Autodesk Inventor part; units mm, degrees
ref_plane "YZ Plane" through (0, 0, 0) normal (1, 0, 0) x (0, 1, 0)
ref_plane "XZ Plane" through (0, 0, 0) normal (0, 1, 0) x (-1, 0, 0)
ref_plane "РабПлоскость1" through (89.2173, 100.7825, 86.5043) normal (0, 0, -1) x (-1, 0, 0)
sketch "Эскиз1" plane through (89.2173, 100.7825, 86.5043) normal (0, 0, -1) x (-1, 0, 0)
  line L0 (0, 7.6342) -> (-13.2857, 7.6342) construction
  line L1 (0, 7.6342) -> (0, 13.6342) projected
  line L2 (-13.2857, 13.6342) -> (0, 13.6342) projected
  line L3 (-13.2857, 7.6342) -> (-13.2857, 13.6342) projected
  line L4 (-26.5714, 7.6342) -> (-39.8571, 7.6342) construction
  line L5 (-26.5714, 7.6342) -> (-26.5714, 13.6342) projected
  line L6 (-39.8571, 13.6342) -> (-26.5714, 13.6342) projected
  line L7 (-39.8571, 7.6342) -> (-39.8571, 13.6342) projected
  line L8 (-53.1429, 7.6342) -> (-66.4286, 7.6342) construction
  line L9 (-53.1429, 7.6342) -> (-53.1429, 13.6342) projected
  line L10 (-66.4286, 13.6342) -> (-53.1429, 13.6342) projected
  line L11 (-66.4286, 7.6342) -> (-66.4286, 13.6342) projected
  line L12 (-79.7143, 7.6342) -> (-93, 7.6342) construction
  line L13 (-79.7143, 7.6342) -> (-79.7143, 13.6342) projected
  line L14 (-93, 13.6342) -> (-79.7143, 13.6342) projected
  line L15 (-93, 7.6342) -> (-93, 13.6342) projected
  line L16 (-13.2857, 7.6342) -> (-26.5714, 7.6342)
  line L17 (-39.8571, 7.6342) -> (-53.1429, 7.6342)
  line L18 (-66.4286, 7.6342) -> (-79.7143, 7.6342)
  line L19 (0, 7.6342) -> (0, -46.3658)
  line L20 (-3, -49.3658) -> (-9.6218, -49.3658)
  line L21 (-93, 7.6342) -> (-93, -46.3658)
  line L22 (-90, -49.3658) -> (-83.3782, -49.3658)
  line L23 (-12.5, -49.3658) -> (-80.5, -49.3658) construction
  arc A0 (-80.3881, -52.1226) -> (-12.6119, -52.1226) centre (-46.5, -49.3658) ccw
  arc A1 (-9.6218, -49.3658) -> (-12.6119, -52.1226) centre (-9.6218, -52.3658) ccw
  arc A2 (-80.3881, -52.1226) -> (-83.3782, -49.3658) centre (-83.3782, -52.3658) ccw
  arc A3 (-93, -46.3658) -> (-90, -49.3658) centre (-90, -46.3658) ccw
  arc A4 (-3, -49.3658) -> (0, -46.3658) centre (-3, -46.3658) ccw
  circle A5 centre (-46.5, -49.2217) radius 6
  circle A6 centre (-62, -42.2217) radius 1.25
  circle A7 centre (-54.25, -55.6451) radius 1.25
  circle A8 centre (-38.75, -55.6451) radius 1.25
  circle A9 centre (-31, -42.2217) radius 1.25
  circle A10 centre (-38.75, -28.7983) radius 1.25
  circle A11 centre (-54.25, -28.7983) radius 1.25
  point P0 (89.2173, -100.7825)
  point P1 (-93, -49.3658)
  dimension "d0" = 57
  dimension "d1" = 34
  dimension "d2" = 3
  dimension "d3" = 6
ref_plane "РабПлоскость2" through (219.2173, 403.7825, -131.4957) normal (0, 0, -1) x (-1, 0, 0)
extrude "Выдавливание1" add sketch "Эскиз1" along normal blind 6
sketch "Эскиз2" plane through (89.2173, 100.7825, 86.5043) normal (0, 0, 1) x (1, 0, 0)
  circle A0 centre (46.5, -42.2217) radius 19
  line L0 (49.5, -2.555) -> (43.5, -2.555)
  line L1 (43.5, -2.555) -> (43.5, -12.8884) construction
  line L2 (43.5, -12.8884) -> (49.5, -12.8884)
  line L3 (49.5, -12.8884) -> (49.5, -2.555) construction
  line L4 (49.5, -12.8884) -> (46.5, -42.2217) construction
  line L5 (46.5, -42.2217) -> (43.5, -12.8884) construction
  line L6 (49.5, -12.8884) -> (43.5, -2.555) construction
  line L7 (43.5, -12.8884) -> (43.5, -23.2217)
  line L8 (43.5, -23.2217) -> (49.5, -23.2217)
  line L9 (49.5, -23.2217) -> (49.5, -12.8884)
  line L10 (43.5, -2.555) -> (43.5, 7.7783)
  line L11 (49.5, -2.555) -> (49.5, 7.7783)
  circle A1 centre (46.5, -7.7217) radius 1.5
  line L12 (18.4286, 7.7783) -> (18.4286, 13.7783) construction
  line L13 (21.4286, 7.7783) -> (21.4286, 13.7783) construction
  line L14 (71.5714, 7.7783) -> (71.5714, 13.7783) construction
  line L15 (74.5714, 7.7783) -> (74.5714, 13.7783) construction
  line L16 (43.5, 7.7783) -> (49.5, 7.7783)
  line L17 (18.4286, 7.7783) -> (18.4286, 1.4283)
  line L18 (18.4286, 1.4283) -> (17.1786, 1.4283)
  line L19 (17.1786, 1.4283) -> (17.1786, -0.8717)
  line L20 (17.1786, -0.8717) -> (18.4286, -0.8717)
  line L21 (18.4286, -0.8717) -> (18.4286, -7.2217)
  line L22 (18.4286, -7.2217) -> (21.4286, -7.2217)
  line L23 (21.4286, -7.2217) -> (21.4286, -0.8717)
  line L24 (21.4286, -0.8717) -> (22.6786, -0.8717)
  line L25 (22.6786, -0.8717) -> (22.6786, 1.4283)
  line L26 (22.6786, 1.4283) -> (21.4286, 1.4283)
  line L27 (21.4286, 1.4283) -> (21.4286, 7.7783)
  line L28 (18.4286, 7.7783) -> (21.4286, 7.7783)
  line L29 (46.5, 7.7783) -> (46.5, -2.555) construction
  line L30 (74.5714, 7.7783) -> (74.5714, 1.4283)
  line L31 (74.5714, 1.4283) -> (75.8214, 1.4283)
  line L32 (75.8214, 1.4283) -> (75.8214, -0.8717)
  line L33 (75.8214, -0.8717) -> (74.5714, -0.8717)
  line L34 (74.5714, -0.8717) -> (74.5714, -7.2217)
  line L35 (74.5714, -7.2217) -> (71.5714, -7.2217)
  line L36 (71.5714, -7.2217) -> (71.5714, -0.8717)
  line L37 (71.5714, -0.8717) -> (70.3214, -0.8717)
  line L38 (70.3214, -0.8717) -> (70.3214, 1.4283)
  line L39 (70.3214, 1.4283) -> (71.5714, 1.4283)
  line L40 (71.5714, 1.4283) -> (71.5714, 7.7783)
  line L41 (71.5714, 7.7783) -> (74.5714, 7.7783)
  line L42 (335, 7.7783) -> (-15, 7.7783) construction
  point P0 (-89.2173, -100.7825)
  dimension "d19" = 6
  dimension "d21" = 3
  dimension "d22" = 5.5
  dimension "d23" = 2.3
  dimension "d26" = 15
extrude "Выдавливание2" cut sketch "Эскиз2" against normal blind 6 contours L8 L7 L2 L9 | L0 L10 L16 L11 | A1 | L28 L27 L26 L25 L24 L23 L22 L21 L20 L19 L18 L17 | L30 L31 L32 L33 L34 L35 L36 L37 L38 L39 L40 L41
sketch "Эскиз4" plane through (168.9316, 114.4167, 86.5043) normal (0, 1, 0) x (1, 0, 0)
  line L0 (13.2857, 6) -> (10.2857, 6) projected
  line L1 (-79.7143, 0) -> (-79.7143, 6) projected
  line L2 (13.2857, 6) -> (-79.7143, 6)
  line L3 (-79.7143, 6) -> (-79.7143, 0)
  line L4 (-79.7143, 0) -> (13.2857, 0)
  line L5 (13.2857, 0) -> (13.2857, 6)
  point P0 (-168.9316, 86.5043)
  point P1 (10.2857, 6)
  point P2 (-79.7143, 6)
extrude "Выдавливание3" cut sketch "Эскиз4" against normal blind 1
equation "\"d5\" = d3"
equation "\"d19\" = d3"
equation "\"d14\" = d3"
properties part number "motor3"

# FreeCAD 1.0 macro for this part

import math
import FreeCAD as App
import Part
import Sketcher
from FreeCAD import Vector
Q = App.Units.Quantity


def add_polygon(sketch, points):
    """Adds a closed chain of lines whose ends are joined by coincident constraints."""
    first, n = sketch.GeometryCount, len(points)
    for a, b in zip(points, points[1:] + points[:1]):
        sketch.addGeometry(Part.LineSegment(App.Vector(*a, 0), App.Vector(*b, 0)), False)
    for i in range(n):
        sketch.addConstraint(Sketcher.Constraint("Coincident", first + i, 2, first + (i + 1) % n, 1))

doc = App.newDocument("Part")
body = doc.addObject("PartDesign::Body", "Body")

sketch1 = body.newObject("Sketcher::SketchObject", "Sketch")
sketch1.AttachmentSupport = (doc.getObject("XY_Plane"), [""])
sketch1.MapMode = "FlatFace"
sketch1.AttachmentOffset = App.Placement(Vector(0, 0, 86.5043), App.Rotation())
sketch1.addGeometry([
    Part.LineSegment(Vector(89.2, 54.4, 0), Vector(89.2, 114.4, 0)),
    Part.LineSegment(Vector(89.2, 114.4, 0), Vector(102.5, 114.4, 0)),
    Part.LineSegment(Vector(102.5, 114.4, 0), Vector(102.5, 108.4, 0)),
    Part.LineSegment(Vector(102.5, 108.4, 0), Vector(115.8, 108.4, 0)),
    Part.LineSegment(Vector(115.8, 108.4, 0), Vector(115.8, 114.4, 0)),
    Part.LineSegment(Vector(115.8, 114.4, 0), Vector(129.1, 114.4, 0)),
    Part.LineSegment(Vector(129.1, 114.4, 0), Vector(129.1, 108.4, 0)),
    Part.LineSegment(Vector(129.1, 108.4, 0), Vector(142.4, 108.4, 0)),
    Part.LineSegment(Vector(142.4, 108.4, 0), Vector(142.4, 114.4, 0)),
    Part.LineSegment(Vector(142.4, 114.4, 0), Vector(155.6, 114.4, 0)),
    Part.LineSegment(Vector(155.6, 114.4, 0), Vector(155.6, 108.4, 0)),
    Part.LineSegment(Vector(155.6, 108.4, 0), Vector(168.9, 108.4, 0)),
    Part.LineSegment(Vector(168.9, 108.4, 0), Vector(168.9, 114.4, 0)),
    Part.LineSegment(Vector(168.9, 114.4, 0), Vector(182.2, 114.4, 0)),
    Part.LineSegment(Vector(182.2, 114.4, 0), Vector(182.2, 54.4, 0)),
    Part.ArcOfCircle(Part.Circle(Vector(179.2, 54.4, 0), Vector(0, 0, 1), 3), math.radians(-90), math.radians(0)),
    Part.LineSegment(Vector(179.2, 51.4, 0), Vector(172.6, 51.4, 0)),
    Part.ArcOfCircle(Part.Circle(Vector(172.6, 48.4, 0), Vector(0, 0, 1), 3), math.radians(90), math.radians(175)),
    Part.ArcOfCircle(Part.Circle(Vector(135.7, 51.4, 0), Vector(0, 0, 1), 34), math.radians(-175), math.radians(-5)),
    Part.ArcOfCircle(Part.Circle(Vector(98.8, 48.4, 0), Vector(0, 0, 1), 3), math.radians(5), math.radians(90)),
    Part.LineSegment(Vector(98.8, 51.4, 0), Vector(92.2, 51.4, 0)),
    Part.ArcOfCircle(Part.Circle(Vector(92.2, 54.4, 0), Vector(0, 0, 1), 3), math.radians(180), math.radians(270)),
    Part.Circle(Vector(143.5, 45.1, 0), Vector(0, 0, 1), 1.2),
    Part.Circle(Vector(151.2, 58.6, 0), Vector(0, 0, 1), 1.2),
    Part.Circle(Vector(128, 45.1, 0), Vector(0, 0, 1), 1.2),
    Part.Circle(Vector(135.7, 51.6, 0), Vector(0, 0, 1), 6),
    Part.Circle(Vector(120.2, 58.6, 0), Vector(0, 0, 1), 1.2),
    Part.Circle(Vector(143.5, 72, 0), Vector(0, 0, 1), 1.2),
    Part.Circle(Vector(128, 72, 0), Vector(0, 0, 1), 1.2),
], False)
sketch1.addConstraint([
    Sketcher.Constraint("Coincident", 0, 2, 1, 1),
    Sketcher.Constraint("Coincident", 1, 2, 2, 1),
    Sketcher.Constraint("Coincident", 2, 2, 3, 1),
    Sketcher.Constraint("Coincident", 3, 2, 4, 1),
    Sketcher.Constraint("Coincident", 4, 2, 5, 1),
    Sketcher.Constraint("Coincident", 5, 2, 6, 1),
    Sketcher.Constraint("Coincident", 6, 2, 7, 1),
    Sketcher.Constraint("Coincident", 7, 2, 8, 1),
    Sketcher.Constraint("Coincident", 8, 2, 9, 1),
    Sketcher.Constraint("Coincident", 9, 2, 10, 1),
    Sketcher.Constraint("Coincident", 10, 2, 11, 1),
    Sketcher.Constraint("Coincident", 11, 2, 12, 1),
    Sketcher.Constraint("Coincident", 12, 2, 13, 1),
    Sketcher.Constraint("Coincident", 13, 2, 14, 1),
    Sketcher.Constraint("Tangent", 14, 2, 15, 2),
    Sketcher.Constraint("Tangent", 15, 1, 16, 1),
    Sketcher.Constraint("Tangent", 16, 2, 17, 1),
    Sketcher.Constraint("Tangent", 17, 2, 18, 2),
    Sketcher.Constraint("Tangent", 18, 1, 19, 1),
    Sketcher.Constraint("Tangent", 19, 2, 20, 1),
    Sketcher.Constraint("Tangent", 20, 2, 21, 2),
    Sketcher.Constraint("Tangent", 21, 1, 0, 1),
    Sketcher.Constraint("Vertical", 0),
    Sketcher.Constraint("Horizontal", 1),
    Sketcher.Constraint("Vertical", 2),
    Sketcher.Constraint("Horizontal", 3),
    Sketcher.Constraint("Vertical", 4),
    Sketcher.Constraint("Horizontal", 5),
    Sketcher.Constraint("Vertical", 6),
    Sketcher.Constraint("Horizontal", 7),
    Sketcher.Constraint("Vertical", 8),
    Sketcher.Constraint("Horizontal", 9),
    Sketcher.Constraint("Vertical", 10),
    Sketcher.Constraint("Horizontal", 11),
    Sketcher.Constraint("Vertical", 12),
    Sketcher.Constraint("Horizontal", 13),
    Sketcher.Constraint("Vertical", 14),
    Sketcher.Constraint("Horizontal", 16),
    Sketcher.Constraint("Horizontal", 20),
    Sketcher.Constraint("Equal", 15, 17),
    Sketcher.Constraint("Equal", 17, 19),
    Sketcher.Constraint("Equal", 19, 21),
    Sketcher.Constraint("Equal", 22, 23),
    Sketcher.Constraint("Equal", 23, 24),
    Sketcher.Constraint("Equal", 24, 26),
    Sketcher.Constraint("Equal", 26, 27),
    Sketcher.Constraint("Equal", 27, 28),
    Sketcher.Constraint("Horizontal", 17, 3, 19, 3),
    Sketcher.Constraint("Horizontal", 22, 3, 24, 3),
    Sketcher.Constraint("Horizontal", 23, 3, 26, 3),
    Sketcher.Constraint("Horizontal", 27, 3, 28, 3),
    Sketcher.Constraint("Horizontal", 1, 2, 4, 2),
    Sketcher.Constraint("Horizontal", 3, 2, 6, 2),
    Sketcher.Constraint("Horizontal", 5, 2, 8, 2),
    Sketcher.Constraint("Horizontal", 7, 2, 10, 2),
    Sketcher.Constraint("Horizontal", 9, 2, 12, 2),
    Sketcher.Constraint("Horizontal", 18, 3, 15, 1),
    Sketcher.Constraint("Vertical", 18, 3, 25, 3),
    Sketcher.Constraint("Vertical", 22, 3, 27, 3),
    Sketcher.Constraint("Vertical", 24, 3, 28, 3),
    Sketcher.Constraint("Equal", 1, 3),
    Sketcher.Constraint("Equal", 3, 5),
    Sketcher.Constraint("Equal", 5, 7),
    Sketcher.Constraint("Equal", 7, 9),
    Sketcher.Constraint("Equal", 9, 11),
    Sketcher.Constraint("Equal", 11, 13),
    Sketcher.Constraint("Equal", 16, 20),
    Sketcher.Constraint("Diameter", 25, Q("12 mm")),
    Sketcher.Constraint("Radius", 15, Q("3 mm")),
    Sketcher.Constraint("Radius", 18, Q("34 mm")),
    Sketcher.Constraint("DistanceY", 2, 2, 2, 1, Q("6 mm")),
    Sketcher.Constraint("Diameter", 22, Q("2.5 mm")),
    Sketcher.Constraint("DistanceY", 0, 1, 0, 2, Q("60 mm")),
    Sketcher.Constraint("DistanceX", 21, 3, 15, 3, Q("87 mm")),
    Sketcher.Constraint("DistanceX", 23, 3, 15, 3, Q("28 mm")),
    Sketcher.Constraint("DistanceY", 25, 3, 23, 3, Q("7 mm")),
    Sketcher.Constraint("DistanceX", 0, 2, 26, 3, Q("31 mm")),
    Sketcher.Constraint("DistanceX", 24, 3, 22, 3, Q("15.5 mm")),
    Sketcher.Constraint("DistanceY", -1, 1, 17, 2, Q("48.66 mm")),
    Sketcher.Constraint("DistanceX", 18, 3, 22, 3, Q("7.75 mm")),
    Sketcher.Constraint("DistanceX", -1, 1, 19, 3, Q("98.839 mm")),
    Sketcher.Constraint("DistanceY", 18, 3, 23, 3, Q("7.144 mm")),
    Sketcher.Constraint("DistanceY", -1, 1, 22, 3, Q("45.1374 mm")),
    Sketcher.Constraint("DistanceY", -1, 1, 27, 3, Q("71.9842 mm")),
])
pad1 = body.newObject("PartDesign::Pad", "Pad")
pad1.Profile = sketch1
pad1.Length = 6
pad1.Reversed = True

sketch2 = body.newObject("Sketcher::SketchObject", "Sketch001")
sketch2.AttachmentSupport = (doc.getObject("XY_Plane"), [""])
sketch2.MapMode = "FlatFace"
sketch2.AttachmentOffset = App.Placement(Vector(0, 0, 86.5043), App.Rotation())
add_polygon(sketch2, [(132.7, 77.6), (138.7, 77.6), (138.7, 87.9), (132.7, 87.9)])
add_polygon(sketch2, [(132.7, 98.2), (138.7, 98.2), (138.7, 108.6), (132.7, 108.6)])
sketch2.addGeometry(Part.Circle(Vector(135.7, 93.1, 0), Vector(0, 0, 1), 1.5), False)
add_polygon(sketch2, [(110.6, 108.6), (107.6, 108.6), (107.6, 102.2), (106.4, 102.2), (106.4, 99.9), (107.6, 99.9), (107.6, 93.6), (110.6, 93.6), (110.6, 99.9), (111.9, 99.9), (111.9, 102.2), (110.6, 102.2)])
add_polygon(sketch2, [(163.8, 102.2), (163.8, 108.6), (160.8, 108.6), (160.8, 102.2), (159.5, 102.2), (159.5, 99.9), (160.8, 99.9), (160.8, 93.6), (163.8, 93.6), (163.8, 99.9), (165, 99.9), (165, 102.2)])
sketch2.addConstraint([
    Sketcher.Constraint("Horizontal", 0),
    Sketcher.Constraint("Vertical", 1),
    Sketcher.Constraint("Horizontal", 2),
    Sketcher.Constraint("Vertical", 3),
    Sketcher.Constraint("Horizontal", 4),
    Sketcher.Constraint("Vertical", 5),
    Sketcher.Constraint("Horizontal", 6),
    Sketcher.Constraint("Vertical", 7),
    Sketcher.Constraint("Horizontal", 9),
    Sketcher.Constraint("Vertical", 10),
    Sketcher.Constraint("Horizontal", 11),
    Sketcher.Constraint("Vertical", 12),
    Sketcher.Constraint("Horizontal", 13),
    Sketcher.Constraint("Vertical", 14),
    Sketcher.Constraint("Horizontal", 15),
    Sketcher.Constraint("Vertical", 16),
    Sketcher.Constraint("Horizontal", 17),
    Sketcher.Constraint("Vertical", 18),
    Sketcher.Constraint("Horizontal", 19),
    Sketcher.Constraint("Vertical", 20),
    Sketcher.Constraint("Vertical", 21),
    Sketcher.Constraint("Horizontal", 22),
    Sketcher.Constraint("Vertical", 23),
    Sketcher.Constraint("Horizontal", 24),
    Sketcher.Constraint("Vertical", 25),
    Sketcher.Constraint("Horizontal", 26),
    Sketcher.Constraint("Vertical", 27),
    Sketcher.Constraint("Horizontal", 28),
    Sketcher.Constraint("Vertical", 29),
    Sketcher.Constraint("Horizontal", 30),
    Sketcher.Constraint("Vertical", 31),
    Sketcher.Constraint("Horizontal", 32),
    Sketcher.Constraint("Horizontal", 6, 2, 9, 2),
    Sketcher.Constraint("Horizontal", 13, 2, 16, 2),
    Sketcher.Constraint("Horizontal", 11, 2, 18, 2),
    Sketcher.Constraint("Horizontal", 20, 2, 21, 2),
    Sketcher.Constraint("Horizontal", 19, 2, 23, 2),
    Sketcher.Constraint("Horizontal", 17, 2, 25, 2),
    Sketcher.Constraint("Horizontal", 15, 2, 27, 2),
    Sketcher.Constraint("Horizontal", 26, 2, 29, 2),
    Sketcher.Constraint("Horizontal", 24, 2, 31, 2),
    Sketcher.Constraint("Vertical", 1, 2, 4, 2),
    Sketcher.Constraint("Vertical", 3, 2, 6, 2),
    Sketcher.Constraint("Vertical", 10, 2, 13, 2),
    Sketcher.Constraint("Vertical", 16, 2, 19, 2),
    Sketcher.Constraint("Vertical", 23, 2, 26, 2),
    Sketcher.Constraint("Vertical", 21, 2, 28, 2),
    Sketcher.Constraint("Equal", 13, 17),
    Sketcher.Constraint("Equal", 15, 22),
    Sketcher.Constraint("Equal", 19, 24),
    Sketcher.Constraint("Equal", 26, 30),
    Sketcher.Constraint("Equal", 3, 5),
    Sketcher.Constraint("Equal", 10, 14),
    Sketcher.Constraint("Diameter", 8, Q("3 mm")),
    Sketcher.Constraint("DistanceX", 0, 1, 0, 2, Q("6 mm")),
    Sketcher.Constraint("DistanceX", 9, 2, 9, 1, Q("3 mm")),
    Sketcher.Constraint("DistanceY", 12, 2, 12, 1, Q("2.3 mm")),
    Sketcher.Constraint("DistanceX", 8, 3, 0, 2, Q("3 mm")),
    Sketcher.Constraint("DistanceY", 14, 2, 9, 2, Q("15 mm")),
    Sketcher.Constraint("DistanceX", 12, 2, 17, 2, Q("5.5 mm")),
    Sketcher.Constraint("DistanceY", 0, 2, 5, 2, Q("31 mm")),
    Sketcher.Constraint("DistanceY", 0, 2, 8, 3, Q("15.5 mm")),
    Sketcher.Constraint("DistanceY", 1, 1, 1, 2, Q("10.3333 mm")),
    Sketcher.Constraint("DistanceY", -1, 1, 1, 2, Q("87.894 mm")),
    Sketcher.Constraint("DistanceX", -1, 1, 9, 2, Q("107.646 mm")),
    Sketcher.Constraint("DistanceX", -1, 1, 8, 3, Q("135.7173 mm")),
    Sketcher.Constraint("DistanceX", -1, 1, 21, 2, Q("163.7887 mm")),
])
pocket1 = body.newObject("PartDesign::Pocket", "Pocket")
pocket1.Profile = sketch2
pocket1.Length = 6

sketch3 = body.newObject("Sketcher::SketchObject", "Sketch002")
sketch3.AttachmentSupport = (doc.getObject("XZ_Plane"), [""])
sketch3.MapMode = "FlatFace"
sketch3.AttachmentOffset = App.Placement(Vector(0, 0, -114.4167), App.Rotation())
add_polygon(sketch3, [(182, 87), (182, 81), (89, 81), (89, 87)])
sketch3.addConstraint([
    Sketcher.Constraint("Vertical", 0),
    Sketcher.Constraint("Horizontal", 1),
    Sketcher.Constraint("Vertical", 2),
    Sketcher.Constraint("Horizontal", 3),
    Sketcher.Constraint("DistanceX", 1, 2, 1, 1, Q("93 mm")),
    Sketcher.Constraint("DistanceY", 0, 2, 0, 1, Q("6 mm")),
    Sketcher.Constraint("DistanceX", -1, 1, 0, 2, Q("182.2173 mm")),
    Sketcher.Constraint("DistanceY", -1, 1, 0, 2, Q("80.5043 mm")),
])
pocket2 = body.newObject("PartDesign::Pocket", "Pocket001")
pocket2.Profile = sketch3
pocket2.Length = 1
pocket2.Reversed = True

doc.recompute()
